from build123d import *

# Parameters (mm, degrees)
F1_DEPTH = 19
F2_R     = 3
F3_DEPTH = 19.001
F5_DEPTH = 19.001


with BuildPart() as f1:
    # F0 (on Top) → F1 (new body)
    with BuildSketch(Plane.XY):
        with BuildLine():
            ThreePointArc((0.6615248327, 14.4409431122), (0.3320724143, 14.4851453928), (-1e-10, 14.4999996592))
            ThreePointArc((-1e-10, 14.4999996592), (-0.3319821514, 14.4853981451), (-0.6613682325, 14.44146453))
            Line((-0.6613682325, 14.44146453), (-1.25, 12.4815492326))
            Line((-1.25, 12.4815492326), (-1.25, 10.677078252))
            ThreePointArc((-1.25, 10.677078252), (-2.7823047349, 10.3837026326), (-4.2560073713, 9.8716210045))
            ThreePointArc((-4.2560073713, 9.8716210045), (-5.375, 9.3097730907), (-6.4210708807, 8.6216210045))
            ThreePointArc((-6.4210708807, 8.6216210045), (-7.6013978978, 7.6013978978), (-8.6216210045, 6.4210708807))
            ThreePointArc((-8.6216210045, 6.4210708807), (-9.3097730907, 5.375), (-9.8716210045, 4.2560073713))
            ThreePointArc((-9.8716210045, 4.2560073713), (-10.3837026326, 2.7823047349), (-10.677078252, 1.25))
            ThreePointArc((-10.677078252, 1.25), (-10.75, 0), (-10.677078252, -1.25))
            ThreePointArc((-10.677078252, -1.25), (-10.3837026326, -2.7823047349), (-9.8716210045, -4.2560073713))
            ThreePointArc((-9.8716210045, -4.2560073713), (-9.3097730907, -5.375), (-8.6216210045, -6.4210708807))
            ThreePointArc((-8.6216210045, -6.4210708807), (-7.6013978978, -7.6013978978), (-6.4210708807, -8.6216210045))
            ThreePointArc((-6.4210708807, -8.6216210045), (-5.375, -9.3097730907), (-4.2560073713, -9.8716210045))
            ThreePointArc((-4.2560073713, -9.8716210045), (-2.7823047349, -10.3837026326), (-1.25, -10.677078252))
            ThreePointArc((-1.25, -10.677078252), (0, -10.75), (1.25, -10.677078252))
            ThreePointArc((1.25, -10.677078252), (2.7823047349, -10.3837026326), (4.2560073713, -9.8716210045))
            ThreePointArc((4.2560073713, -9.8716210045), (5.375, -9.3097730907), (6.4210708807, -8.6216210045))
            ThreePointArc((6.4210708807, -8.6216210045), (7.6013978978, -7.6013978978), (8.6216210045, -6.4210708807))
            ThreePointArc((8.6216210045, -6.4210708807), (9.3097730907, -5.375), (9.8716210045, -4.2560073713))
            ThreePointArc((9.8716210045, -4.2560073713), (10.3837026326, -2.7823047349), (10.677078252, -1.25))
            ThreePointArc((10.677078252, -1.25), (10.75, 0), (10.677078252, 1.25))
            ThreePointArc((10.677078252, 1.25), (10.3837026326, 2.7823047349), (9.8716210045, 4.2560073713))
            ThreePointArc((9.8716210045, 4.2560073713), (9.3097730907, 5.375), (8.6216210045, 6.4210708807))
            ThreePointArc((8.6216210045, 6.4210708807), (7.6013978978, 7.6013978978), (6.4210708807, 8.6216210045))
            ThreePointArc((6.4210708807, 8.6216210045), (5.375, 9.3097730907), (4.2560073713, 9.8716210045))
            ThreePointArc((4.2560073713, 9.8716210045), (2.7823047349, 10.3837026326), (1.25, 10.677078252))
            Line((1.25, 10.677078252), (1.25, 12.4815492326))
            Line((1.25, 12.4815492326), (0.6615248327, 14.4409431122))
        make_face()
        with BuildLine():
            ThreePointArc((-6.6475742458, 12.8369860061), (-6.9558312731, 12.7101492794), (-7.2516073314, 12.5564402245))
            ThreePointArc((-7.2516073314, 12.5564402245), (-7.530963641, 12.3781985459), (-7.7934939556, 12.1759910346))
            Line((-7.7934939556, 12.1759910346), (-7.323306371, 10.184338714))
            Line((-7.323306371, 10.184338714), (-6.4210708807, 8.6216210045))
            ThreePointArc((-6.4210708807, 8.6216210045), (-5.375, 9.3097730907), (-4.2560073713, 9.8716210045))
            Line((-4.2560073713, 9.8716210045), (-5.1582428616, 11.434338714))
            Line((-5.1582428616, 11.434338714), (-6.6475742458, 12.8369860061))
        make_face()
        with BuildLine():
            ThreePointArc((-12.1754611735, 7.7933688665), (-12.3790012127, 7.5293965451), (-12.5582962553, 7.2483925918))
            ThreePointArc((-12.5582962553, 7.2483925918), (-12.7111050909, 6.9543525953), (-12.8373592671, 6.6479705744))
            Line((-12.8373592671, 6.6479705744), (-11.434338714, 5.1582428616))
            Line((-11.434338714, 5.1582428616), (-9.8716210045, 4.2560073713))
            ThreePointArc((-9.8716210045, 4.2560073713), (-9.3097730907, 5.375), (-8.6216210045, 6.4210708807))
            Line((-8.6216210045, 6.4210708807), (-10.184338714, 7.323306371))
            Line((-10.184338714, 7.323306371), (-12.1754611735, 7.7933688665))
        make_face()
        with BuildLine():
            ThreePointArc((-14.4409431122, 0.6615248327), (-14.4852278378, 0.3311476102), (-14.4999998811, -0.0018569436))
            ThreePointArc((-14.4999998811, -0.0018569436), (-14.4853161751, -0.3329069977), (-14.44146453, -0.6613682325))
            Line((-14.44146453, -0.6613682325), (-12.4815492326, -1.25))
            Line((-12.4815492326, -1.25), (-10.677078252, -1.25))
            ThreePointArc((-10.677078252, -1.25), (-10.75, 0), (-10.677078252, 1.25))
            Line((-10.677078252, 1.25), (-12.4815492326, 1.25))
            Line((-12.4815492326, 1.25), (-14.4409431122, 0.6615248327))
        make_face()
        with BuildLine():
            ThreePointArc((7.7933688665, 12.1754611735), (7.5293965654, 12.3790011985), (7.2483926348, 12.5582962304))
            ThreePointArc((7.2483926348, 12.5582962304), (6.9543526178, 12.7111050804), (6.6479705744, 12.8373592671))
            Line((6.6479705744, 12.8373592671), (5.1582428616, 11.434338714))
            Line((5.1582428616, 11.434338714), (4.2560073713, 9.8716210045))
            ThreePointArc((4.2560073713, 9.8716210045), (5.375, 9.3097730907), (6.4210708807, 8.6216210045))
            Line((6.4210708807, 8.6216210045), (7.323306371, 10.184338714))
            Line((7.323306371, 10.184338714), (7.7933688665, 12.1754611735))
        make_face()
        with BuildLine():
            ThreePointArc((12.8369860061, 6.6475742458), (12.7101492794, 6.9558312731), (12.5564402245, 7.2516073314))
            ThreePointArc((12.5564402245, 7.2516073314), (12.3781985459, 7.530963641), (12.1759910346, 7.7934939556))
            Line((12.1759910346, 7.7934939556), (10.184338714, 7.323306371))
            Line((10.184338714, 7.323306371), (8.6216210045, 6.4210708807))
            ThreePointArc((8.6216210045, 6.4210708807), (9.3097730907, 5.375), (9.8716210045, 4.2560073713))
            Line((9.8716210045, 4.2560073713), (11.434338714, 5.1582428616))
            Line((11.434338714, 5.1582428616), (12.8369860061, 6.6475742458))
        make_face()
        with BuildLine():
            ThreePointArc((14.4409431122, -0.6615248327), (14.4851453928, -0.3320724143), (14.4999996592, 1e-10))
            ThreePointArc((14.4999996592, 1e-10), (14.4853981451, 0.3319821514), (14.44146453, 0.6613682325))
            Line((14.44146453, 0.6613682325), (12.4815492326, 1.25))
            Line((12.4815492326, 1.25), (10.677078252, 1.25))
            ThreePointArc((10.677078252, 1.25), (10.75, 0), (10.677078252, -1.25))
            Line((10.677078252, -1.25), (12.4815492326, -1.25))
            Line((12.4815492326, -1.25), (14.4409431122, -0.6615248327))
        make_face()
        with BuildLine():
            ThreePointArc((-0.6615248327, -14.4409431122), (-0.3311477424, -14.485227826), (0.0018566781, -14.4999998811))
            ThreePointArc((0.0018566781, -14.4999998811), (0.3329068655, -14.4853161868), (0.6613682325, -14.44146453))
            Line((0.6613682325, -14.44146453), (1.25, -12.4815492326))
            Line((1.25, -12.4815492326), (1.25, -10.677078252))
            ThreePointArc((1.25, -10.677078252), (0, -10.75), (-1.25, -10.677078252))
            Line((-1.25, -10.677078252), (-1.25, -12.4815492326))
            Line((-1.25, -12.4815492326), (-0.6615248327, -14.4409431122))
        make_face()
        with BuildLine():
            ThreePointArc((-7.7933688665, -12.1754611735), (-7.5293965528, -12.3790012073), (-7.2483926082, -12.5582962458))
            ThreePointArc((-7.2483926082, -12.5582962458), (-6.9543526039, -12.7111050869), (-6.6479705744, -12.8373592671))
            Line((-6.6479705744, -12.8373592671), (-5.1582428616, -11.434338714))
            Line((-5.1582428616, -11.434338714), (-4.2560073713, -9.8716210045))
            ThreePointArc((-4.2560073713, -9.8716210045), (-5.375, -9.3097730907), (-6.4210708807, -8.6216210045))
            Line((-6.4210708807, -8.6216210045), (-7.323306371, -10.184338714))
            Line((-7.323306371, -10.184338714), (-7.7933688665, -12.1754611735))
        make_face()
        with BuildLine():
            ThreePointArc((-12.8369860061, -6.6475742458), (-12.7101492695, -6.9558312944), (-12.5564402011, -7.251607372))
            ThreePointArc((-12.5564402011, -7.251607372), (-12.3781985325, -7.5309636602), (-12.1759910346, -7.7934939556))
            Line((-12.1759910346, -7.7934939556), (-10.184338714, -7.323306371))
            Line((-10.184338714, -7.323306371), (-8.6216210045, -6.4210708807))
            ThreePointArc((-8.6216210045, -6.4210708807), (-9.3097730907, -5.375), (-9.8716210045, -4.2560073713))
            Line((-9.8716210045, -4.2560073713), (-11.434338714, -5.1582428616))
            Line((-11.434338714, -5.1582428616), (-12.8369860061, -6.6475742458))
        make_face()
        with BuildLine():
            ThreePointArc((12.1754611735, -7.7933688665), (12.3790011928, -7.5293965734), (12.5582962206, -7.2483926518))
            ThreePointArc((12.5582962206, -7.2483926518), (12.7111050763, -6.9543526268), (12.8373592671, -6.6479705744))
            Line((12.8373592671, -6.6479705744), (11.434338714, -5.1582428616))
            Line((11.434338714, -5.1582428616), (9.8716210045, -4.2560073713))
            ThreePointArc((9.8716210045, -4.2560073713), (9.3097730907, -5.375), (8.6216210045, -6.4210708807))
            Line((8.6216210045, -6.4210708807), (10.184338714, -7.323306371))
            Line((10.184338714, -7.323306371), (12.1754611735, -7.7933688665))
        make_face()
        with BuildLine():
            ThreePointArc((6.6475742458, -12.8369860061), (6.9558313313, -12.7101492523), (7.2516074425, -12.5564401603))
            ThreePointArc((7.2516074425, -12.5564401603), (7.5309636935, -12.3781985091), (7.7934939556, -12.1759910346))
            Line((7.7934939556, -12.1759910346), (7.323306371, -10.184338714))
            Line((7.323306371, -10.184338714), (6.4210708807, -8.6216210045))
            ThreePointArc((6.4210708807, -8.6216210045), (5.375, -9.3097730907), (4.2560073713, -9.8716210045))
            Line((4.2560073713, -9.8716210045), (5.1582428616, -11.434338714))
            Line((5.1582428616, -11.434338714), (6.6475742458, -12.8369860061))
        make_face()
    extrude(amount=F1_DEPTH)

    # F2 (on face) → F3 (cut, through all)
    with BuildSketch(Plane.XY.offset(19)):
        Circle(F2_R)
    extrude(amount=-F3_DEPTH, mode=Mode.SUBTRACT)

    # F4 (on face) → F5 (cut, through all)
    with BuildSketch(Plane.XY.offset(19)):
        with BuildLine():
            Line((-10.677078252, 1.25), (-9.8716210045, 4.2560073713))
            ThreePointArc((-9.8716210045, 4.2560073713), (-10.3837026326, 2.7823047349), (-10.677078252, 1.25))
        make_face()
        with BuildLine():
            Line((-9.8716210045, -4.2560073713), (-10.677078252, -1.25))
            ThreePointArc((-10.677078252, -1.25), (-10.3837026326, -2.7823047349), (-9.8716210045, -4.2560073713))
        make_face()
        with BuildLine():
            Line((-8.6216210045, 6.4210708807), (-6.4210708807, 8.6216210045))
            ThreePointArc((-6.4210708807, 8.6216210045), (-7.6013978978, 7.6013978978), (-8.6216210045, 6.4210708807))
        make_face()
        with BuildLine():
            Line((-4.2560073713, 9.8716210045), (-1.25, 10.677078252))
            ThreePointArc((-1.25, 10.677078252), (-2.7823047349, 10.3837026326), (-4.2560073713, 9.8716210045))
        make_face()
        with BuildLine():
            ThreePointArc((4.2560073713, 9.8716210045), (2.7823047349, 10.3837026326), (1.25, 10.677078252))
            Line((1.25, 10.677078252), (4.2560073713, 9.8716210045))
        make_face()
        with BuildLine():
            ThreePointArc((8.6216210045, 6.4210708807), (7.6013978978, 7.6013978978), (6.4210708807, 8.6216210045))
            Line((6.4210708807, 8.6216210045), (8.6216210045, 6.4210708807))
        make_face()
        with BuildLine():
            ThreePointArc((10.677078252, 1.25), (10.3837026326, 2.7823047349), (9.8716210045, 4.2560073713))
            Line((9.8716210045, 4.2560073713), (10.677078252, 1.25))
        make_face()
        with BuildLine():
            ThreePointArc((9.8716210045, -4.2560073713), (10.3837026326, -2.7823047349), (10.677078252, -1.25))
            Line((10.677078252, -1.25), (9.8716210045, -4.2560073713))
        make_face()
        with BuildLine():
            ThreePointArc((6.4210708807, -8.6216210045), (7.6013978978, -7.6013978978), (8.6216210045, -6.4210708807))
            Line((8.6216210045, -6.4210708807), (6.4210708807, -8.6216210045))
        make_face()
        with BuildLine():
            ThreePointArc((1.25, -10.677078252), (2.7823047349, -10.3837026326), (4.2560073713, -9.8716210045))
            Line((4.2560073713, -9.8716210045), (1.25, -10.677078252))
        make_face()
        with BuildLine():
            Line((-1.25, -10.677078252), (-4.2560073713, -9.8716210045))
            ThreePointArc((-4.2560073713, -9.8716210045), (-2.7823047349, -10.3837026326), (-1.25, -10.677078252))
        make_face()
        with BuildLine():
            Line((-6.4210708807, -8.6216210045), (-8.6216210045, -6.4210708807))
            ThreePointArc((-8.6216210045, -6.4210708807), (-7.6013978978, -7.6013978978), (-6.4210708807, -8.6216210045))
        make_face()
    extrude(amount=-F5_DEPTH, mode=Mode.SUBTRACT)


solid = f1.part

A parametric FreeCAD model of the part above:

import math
import FreeCAD as App
import Part
import Sketcher

V = App.Vector
Q = App.Units.Quantity

doc = App.newDocument("Part")
body = doc.addObject("PartDesign::Body", "Body")

# Sketch on XY plane
sketch1 = doc.addObject("Sketcher::SketchObject", "Sketch")
body.addObject(sketch1)
sketch1.AttachmentSupport = (doc.XY_Plane, [""])
sketch1.MapMode = "FlatFace"
sketch1.addGeometry([
    Part.ArcOfCircle(Part.Circle(V(-0.001377, 10.75, 0), V(0, 0, 1), 3.75), math.radians(79.818106), math.radians(89.978967)),  # 0
    Part.ArcOfCircle(Part.Circle(V(-0.001377, 10.75, 0), V(0, 0, 1), 3.75), math.radians(89.978967), math.radians(100.136728)),  # 1
    Part.LineSegment(V(-0.661368, 14.441465, 0), V(-1.25, 12.481549, 0)),  # 2
    Part.LineSegment(V(-1.25, 12.481549, 0), V(-1.25, 10.677078, 0)),  # 3
    Part.ArcOfCircle(Part.Circle(V(0, 0, 0), V(0, 0, 1), 10.75), math.radians(96.677405), math.radians(113.322595)),  # 4
    Part.LineSegment(V(-4.256007, 9.871621, 0), V(-5.158243, 11.434339, 0)),  # 5
    Part.LineSegment(V(-5.158243, 11.434339, 0), V(-6.647574, 12.836986, 0)),  # 6
    Part.ArcOfCircle(Part.Circle(V(-5.376192, 9.309085, 0), V(0, 0, 1), 3.75), math.radians(109.818106), math.radians(120.007326)),  # 7
    Part.ArcOfCircle(Part.Circle(V(-5.376192, 9.309085, 0), V(0, 0, 1), 3.75), math.radians(120.007326), math.radians(130.136727)),  # 8
    Part.LineSegment(V(-7.793494, 12.175991, 0), V(-7.323306, 10.184339, 0)),  # 9
    Part.LineSegment(V(-7.323306, 10.184339, 0), V(-6.421071, 8.621621, 0)),  # 10
    Part.ArcOfCircle(Part.Circle(V(0, 0, 0), V(0, 0, 1), 10.75), math.radians(126.677405), math.radians(143.322595)),  # 11
    Part.LineSegment(V(-8.621621, 6.421071, 0), V(-10.184339, 7.323306, 0)),  # 12
    Part.LineSegment(V(-10.184339, 7.323306, 0), V(-12.175461, 7.793369, 0)),  # 13
    Part.ArcOfCircle(Part.Circle(V(-9.310461, 5.373808, 0), V(0, 0, 1), 3.75), math.radians(139.818106), math.radians(150.007325)),  # 14
    Part.ArcOfCircle(Part.Circle(V(-9.310461, 5.373808, 0), V(0, 0, 1), 3.75), math.radians(150.007325), math.radians(160.136728)),  # 15
    Part.LineSegment(V(-12.837359, 6.647971, 0), V(-11.434339, 5.158243, 0)),  # 16
    Part.LineSegment(V(-11.434339, 5.158243, 0), V(-9.871621, 4.256007, 0)),  # 17
    Part.ArcOfCircle(Part.Circle(V(0, 0, 0), V(0, 0, 1), 10.75), math.radians(156.677405), math.radians(173.322595)),  # 18
    Part.LineSegment(V(-10.677078, 1.25, 0), V(-12.481549, 1.25, 0)),  # 19
    Part.LineSegment(V(-12.481549, 1.25, 0), V(-14.440943, 0.661525, 0)),  # 20
    Part.ArcOfCircle(Part.Circle(V(-10.75, -0.001377, 0), V(0, 0, 1), 3.75), math.radians(169.818106), math.radians(180.007339)),  # 21
    Part.ArcOfCircle(Part.Circle(V(-10.75, -0.001377, 0), V(0, 0, 1), 3.75), math.radians(-179.992661), math.radians(-169.863272)),  # 22
    Part.LineSegment(V(-14.441465, -0.661368, 0), V(-12.481549, -1.25, 0)),  # 23
    Part.LineSegment(V(-12.481549, -1.25, 0), V(-10.677078, -1.25, 0)),  # 24
    Part.ArcOfCircle(Part.Circle(V(0, 0, 0), V(0, 0, 1), 10.75), math.radians(-173.322595), math.radians(-156.677405)),  # 25
    Part.LineSegment(V(-9.871621, -4.256007, 0), V(-11.434339, -5.158243, 0)),  # 26
    Part.LineSegment(V(-11.434339, -5.158243, 0), V(-12.836986, -6.647574, 0)),  # 27
    Part.ArcOfCircle(Part.Circle(V(-9.309085, -5.376192, 0), V(0, 0, 1), 3.75), math.radians(-160.181894), math.radians(-149.992674)),  # 28
    Part.ArcOfCircle(Part.Circle(V(-9.309085, -5.376192, 0), V(0, 0, 1), 3.75), math.radians(-149.992674), math.radians(-139.863272)),  # 29
    Part.LineSegment(V(-12.175991, -7.793494, 0), V(-10.184339, -7.323306, 0)),  # 30
    Part.LineSegment(V(-10.184339, -7.323306, 0), V(-8.621621, -6.421071, 0)),  # 31
    Part.ArcOfCircle(Part.Circle(V(0, 0, 0), V(0, 0, 1), 10.75), math.radians(-143.322595), math.radians(-126.677405)),  # 32
    Part.LineSegment(V(-6.421071, -8.621621, 0), V(-7.323306, -10.184339, 0)),  # 33
    Part.LineSegment(V(-7.323306, -10.184339, 0), V(-7.793369, -12.175461, 0)),  # 34
    Part.ArcOfCircle(Part.Circle(V(-5.373808, -9.310461, 0), V(0, 0, 1), 3.75), math.radians(-130.181894), math.radians(-119.992675)),  # 35
    Part.ArcOfCircle(Part.Circle(V(-5.373808, -9.310461, 0), V(0, 0, 1), 3.75), math.radians(-119.992675), math.radians(-109.863272)),  # 36
    Part.LineSegment(V(-6.647971, -12.837359, 0), V(-5.158243, -11.434339, 0)),  # 37
    Part.LineSegment(V(-5.158243, -11.434339, 0), V(-4.256007, -9.871621, 0)),  # 38
    Part.ArcOfCircle(Part.Circle(V(0, 0, 0), V(0, 0, 1), 10.75), math.radians(-113.322595), math.radians(-96.677405)),  # 39
    Part.LineSegment(V(-1.25, -10.677078, 0), V(-1.25, -12.481549, 0)),  # 40
    Part.LineSegment(V(-1.25, -12.481549, 0), V(-0.661525, -14.440943, 0)),  # 41
    Part.ArcOfCircle(Part.Circle(V(0.001377, -10.75, 0), V(0, 0, 1), 3.75), math.radians(-100.181894), math.radians(-89.992665)),  # 42
    Part.ArcOfCircle(Part.Circle(V(0.001377, -10.75, 0), V(0, 0, 1), 3.75), math.radians(-89.992665), math.radians(-79.863272)),  # 43
    Part.LineSegment(V(0.661368, -14.441465, 0), V(1.25, -12.481549, 0)),  # 44
    Part.LineSegment(V(1.25, -12.481549, 0), V(1.25, -10.677078, 0)),  # 45
    Part.ArcOfCircle(Part.Circle(V(0, 0, 0), V(0, 0, 1), 10.75), math.radians(-83.322595), math.radians(-66.677405)),  # 46
    Part.LineSegment(V(4.256007, -9.871621, 0), V(5.158243, -11.434339, 0)),  # 47
    Part.LineSegment(V(5.158243, -11.434339, 0), V(6.647574, -12.836986, 0)),  # 48
    Part.ArcOfCircle(Part.Circle(V(5.376192, -9.309085, 0), V(0, 0, 1), 3.75), math.radians(-70.181894), math.radians(-59.992672)),  # 49
    Part.ArcOfCircle(Part.Circle(V(5.376192, -9.309085, 0), V(0, 0, 1), 3.75), math.radians(-59.992672), math.radians(-49.863272)),  # 50
    Part.LineSegment(V(7.793494, -12.175991, 0), V(7.323306, -10.184339, 0)),  # 51
    Part.LineSegment(V(7.323306, -10.184339, 0), V(6.421071, -8.621621, 0)),  # 52
    Part.ArcOfCircle(Part.Circle(V(0, 0, 0), V(0, 0, 1), 10.75), math.radians(-53.322595), math.radians(-36.677405)),  # 53
    Part.LineSegment(V(8.621621, -6.421071, 0), V(10.184339, -7.323306, 0)),  # 54
    Part.LineSegment(V(10.184339, -7.323306, 0), V(12.175461, -7.793369, 0)),  # 55
    Part.ArcOfCircle(Part.Circle(V(9.310461, -5.373808, 0), V(0, 0, 1), 3.75), math.radians(-40.181894), math.radians(-29.992676)),  # 56
    Part.ArcOfCircle(Part.Circle(V(9.310461, -5.373808, 0), V(0, 0, 1), 3.75), math.radians(-29.992676), math.radians(-19.863272)),  # 57
    Part.LineSegment(V(12.837359, -6.647971, 0), V(11.434339, -5.158243, 0)),  # 58
    Part.LineSegment(V(11.434339, -5.158243, 0), V(9.871621, -4.256007, 0)),  # 59
    Part.ArcOfCircle(Part.Circle(V(0, 0, 0), V(0, 0, 1), 10.75), math.radians(-23.322595), math.radians(-6.677405)),  # 60
    Part.LineSegment(V(10.677078, -1.25, 0), V(12.481549, -1.25, 0)),  # 61
    Part.LineSegment(V(12.481549, -1.25, 0), V(14.440943, -0.661525, 0)),  # 62
    Part.ArcOfCircle(Part.Circle(V(10.75, 0.001377, 0), V(0, 0, 1), 3.75), math.radians(-10.181894), math.radians(-0.021033)),  # 63
    Part.ArcOfCircle(Part.Circle(V(10.75, 0.001377, 0), V(0, 0, 1), 3.75), math.radians(-0.021033), math.radians(10.136728)),  # 64
    Part.LineSegment(V(14.441465, 0.661368, 0), V(12.481549, 1.25, 0)),  # 65
    Part.LineSegment(V(12.481549, 1.25, 0), V(10.677078, 1.25, 0)),  # 66
    Part.ArcOfCircle(Part.Circle(V(0, 0, 0), V(0, 0, 1), 10.75), math.radians(6.677405), math.radians(23.322595)),  # 67
    Part.LineSegment(V(9.871621, 4.256007, 0), V(11.434339, 5.158243, 0)),  # 68
    Part.LineSegment(V(11.434339, 5.158243, 0), V(12.836986, 6.647574, 0)),  # 69
    Part.ArcOfCircle(Part.Circle(V(9.309085, 5.376192, 0), V(0, 0, 1), 3.75), math.radians(19.818106), math.radians(30.007326)),  # 70
    Part.ArcOfCircle(Part.Circle(V(9.309085, 5.376192, 0), V(0, 0, 1), 3.75), math.radians(30.007326), math.radians(40.136727)),  # 71
    Part.LineSegment(V(12.175991, 7.793494, 0), V(10.184339, 7.323306, 0)),  # 72
    Part.LineSegment(V(10.184339, 7.323306, 0), V(8.621621, 6.421071, 0)),  # 73
    Part.ArcOfCircle(Part.Circle(V(0, 0, 0), V(0, 0, 1), 10.75), math.radians(36.677405), math.radians(53.322595)),  # 74
    Part.LineSegment(V(6.421071, 8.621621, 0), V(7.323306, 10.184339, 0)),  # 75
    Part.LineSegment(V(7.323306, 10.184339, 0), V(7.793369, 12.175461, 0)),  # 76
    Part.ArcOfCircle(Part.Circle(V(5.373808, 9.310461, 0), V(0, 0, 1), 3.75), math.radians(49.818106), math.radians(60.007324)),  # 77
    Part.ArcOfCircle(Part.Circle(V(5.373808, 9.310461, 0), V(0, 0, 1), 3.75), math.radians(60.007324), math.radians(70.136728)),  # 78
    Part.LineSegment(V(6.647971, 12.837359, 0), V(5.158243, 11.434339, 0)),  # 79
    Part.LineSegment(V(5.158243, 11.434339, 0), V(4.256007, 9.871621, 0)),  # 80
    Part.ArcOfCircle(Part.Circle(V(0, 0, 0), V(0, 0, 1), 10.75), math.radians(66.677405), math.radians(83.322595)),  # 81
    Part.LineSegment(V(1.25, 10.677078, 0), V(1.25, 12.481549, 0)),  # 82
    Part.LineSegment(V(1.25, 12.481549, 0), V(0.661525, 14.440943, 0)),  # 83
], False)
sketch1.addConstraint([
    Sketcher.Constraint("Coincident", 0, 2, 1, 1),
    Sketcher.Constraint("Coincident", 1, 2, 2, 1),
    Sketcher.Constraint("Coincident", 2, 2, 3, 1),
    Sketcher.Constraint("Coincident", 3, 2, 4, 1),
    Sketcher.Constraint("Coincident", 4, 2, 5, 1),
    Sketcher.Constraint("Coincident", 5, 2, 6, 1),
    Sketcher.Constraint("Coincident", 6, 2, 7, 1),
    Sketcher.Constraint("Coincident", 7, 2, 8, 1),
    Sketcher.Constraint("Coincident", 8, 2, 9, 1),
    Sketcher.Constraint("Coincident", 9, 2, 10, 1),
    Sketcher.Constraint("Coincident", 10, 2, 11, 1),
    Sketcher.Constraint("Coincident", 11, 2, 12, 1),
    Sketcher.Constraint("Coincident", 12, 2, 13, 1),
    Sketcher.Constraint("Coincident", 13, 2, 14, 1),
    Sketcher.Constraint("Coincident", 14, 2, 15, 1),
    Sketcher.Constraint("Coincident", 15, 2, 16, 1),
    Sketcher.Constraint("Coincident", 16, 2, 17, 1),
    Sketcher.Constraint("Coincident", 17, 2, 18, 1),
    Sketcher.Constraint("Coincident", 18, 2, 19, 1),
    Sketcher.Constraint("Coincident", 19, 2, 20, 1),
    Sketcher.Constraint("Coincident", 20, 2, 21, 1),
    Sketcher.Constraint("Coincident", 21, 2, 22, 1),
    Sketcher.Constraint("Coincident", 22, 2, 23, 1),
    Sketcher.Constraint("Coincident", 23, 2, 24, 1),
    Sketcher.Constraint("Coincident", 24, 2, 25, 1),
    Sketcher.Constraint("Coincident", 25, 2, 26, 1),
    Sketcher.Constraint("Coincident", 26, 2, 27, 1),
    Sketcher.Constraint("Coincident", 27, 2, 28, 1),
    Sketcher.Constraint("Coincident", 28, 2, 29, 1),
    Sketcher.Constraint("Coincident", 29, 2, 30, 1),
    Sketcher.Constraint("Coincident", 30, 2, 31, 1),
    Sketcher.Constraint("Coincident", 31, 2, 32, 1),
    Sketcher.Constraint("Coincident", 32, 2, 33, 1),
    Sketcher.Constraint("Coincident", 33, 2, 34, 1),
    Sketcher.Constraint("Coincident", 34, 2, 35, 1),
    Sketcher.Constraint("Coincident", 35, 2, 36, 1),
    Sketcher.Constraint("Coincident", 36, 2, 37, 1),
    Sketcher.Constraint("Coincident", 37, 2, 38, 1),
    Sketcher.Constraint("Coincident", 38, 2, 39, 1),
    Sketcher.Constraint("Coincident", 39, 2, 40, 1),
    Sketcher.Constraint("Coincident", 40, 2, 41, 1),
    Sketcher.Constraint("Coincident", 41, 2, 42, 1),
    Sketcher.Constraint("Coincident", 42, 2, 43, 1),
    Sketcher.Constraint("Coincident", 43, 2, 44, 1),
    Sketcher.Constraint("Coincident", 44, 2, 45, 1),
    Sketcher.Constraint("Coincident", 45, 2, 46, 1),
    Sketcher.Constraint("Coincident", 46, 2, 47, 1),
    Sketcher.Constraint("Coincident", 47, 2, 48, 1),
    Sketcher.Constraint("Coincident", 48, 2, 49, 1),
    Sketcher.Constraint("Coincident", 49, 2, 50, 1),
    Sketcher.Constraint("Coincident", 50, 2, 51, 1),
    Sketcher.Constraint("Coincident", 51, 2, 52, 1),
    Sketcher.Constraint("Coincident", 52, 2, 53, 1),
    Sketcher.Constraint("Coincident", 53, 2, 54, 1),
    Sketcher.Constraint("Coincident", 54, 2, 55, 1),
    Sketcher.Constraint("Coincident", 55, 2, 56, 1),
    Sketcher.Constraint("Coincident", 56, 2, 57, 1),
    Sketcher.Constraint("Coincident", 57, 2, 58, 1),
    Sketcher.Constraint("Coincident", 58, 2, 59, 1),
    Sketcher.Constraint("Coincident", 59, 2, 60, 1),
    Sketcher.Constraint("Coincident", 60, 2, 61, 1),
    Sketcher.Constraint("Coincident", 61, 2, 62, 1),
    Sketcher.Constraint("Coincident", 62, 2, 63, 1),
    Sketcher.Constraint("Coincident", 63, 2, 64, 1),
    Sketcher.Constraint("Coincident", 64, 2, 65, 1),
    Sketcher.Constraint("Coincident", 65, 2, 66, 1),
    Sketcher.Constraint("Coincident", 66, 2, 67, 1),
    Sketcher.Constraint("Coincident", 67, 2, 68, 1),
    Sketcher.Constraint("Coincident", 68, 2, 69, 1),
    Sketcher.Constraint("Coincident", 69, 2, 70, 1),
    Sketcher.Constraint("Coincident", 70, 2, 71, 1),
    Sketcher.Constraint("Coincident", 71, 2, 72, 1),
    Sketcher.Constraint("Coincident", 72, 2, 73, 1),
    Sketcher.Constraint("Coincident", 73, 2, 74, 1),
    Sketcher.Constraint("Coincident", 74, 2, 75, 1),
    Sketcher.Constraint("Coincident", 75, 2, 76, 1),
    Sketcher.Constraint("Coincident", 76, 2, 77, 1),
    Sketcher.Constraint("Coincident", 77, 2, 78, 1),
    Sketcher.Constraint("Coincident", 78, 2, 79, 1),
    Sketcher.Constraint("Coincident", 79, 2, 80, 1),
    Sketcher.Constraint("Coincident", 80, 2, 81, 1),
    Sketcher.Constraint("Coincident", 81, 2, 82, 1),
    Sketcher.Constraint("Coincident", 82, 2, 83, 1),
    Sketcher.Constraint("Coincident", 83, 2, 0, 1),
    Sketcher.Constraint("Vertical", 3),
    Sketcher.Constraint("Horizontal", 19),
    Sketcher.Constraint("Horizontal", 24),
    Sketcher.Constraint("Vertical", 40),
    Sketcher.Constraint("Vertical", 45),
    Sketcher.Constraint("Horizontal", 61),
    Sketcher.Constraint("Horizontal", 66),
    Sketcher.Constraint("Vertical", 82),
    Sketcher.Constraint("Coincident", 4, 3, -1, 1),
    Sketcher.Constraint("Coincident", 11, 3, -1, 1),
    Sketcher.Constraint("Coincident", 18, 3, -1, 1),
    Sketcher.Constraint("Coincident", 25, 3, -1, 1),
    Sketcher.Constraint("Coincident", 32, 3, -1, 1),
    Sketcher.Constraint("Coincident", 39, 3, -1, 1),
    Sketcher.Constraint("Coincident", 46, 3, -1, 1),
    Sketcher.Constraint("Coincident", 53, 3, -1, 1),
    Sketcher.Constraint("Coincident", 60, 3, -1, 1),
    Sketcher.Constraint("Coincident", 67, 3, -1, 1),
    Sketcher.Constraint("Coincident", 74, 3, -1, 1),
    Sketcher.Constraint("Coincident", 81, 3, -1, 1),
    Sketcher.Constraint("Coincident", 1, 3, 0, 3),
    Sketcher.Constraint("Coincident", 8, 3, 7, 3),
    Sketcher.Constraint("Coincident", 15, 3, 14, 3),
    Sketcher.Constraint("Coincident", 22, 3, 21, 3),
    Sketcher.Constraint("Coincident", 29, 3, 28, 3),
    Sketcher.Constraint("Coincident", 36, 3, 35, 3),
    Sketcher.Constraint("Coincident", 43, 3, 42, 3),
    Sketcher.Constraint("Coincident", 50, 3, 49, 3),
    Sketcher.Constraint("Coincident", 57, 3, 56, 3),
    Sketcher.Constraint("Coincident", 64, 3, 63, 3),
    Sketcher.Constraint("Coincident", 71, 3, 70, 3),
    Sketcher.Constraint("Coincident", 78, 3, 77, 3),
    Sketcher.Constraint("PointOnObject", 0, 2, -2),
    Sketcher.Constraint("PointOnObject", 63, 2, -1),
    Sketcher.Constraint("Radius", 0, Q("3.75 mm")),
    Sketcher.Constraint("Radius", 4, Q("10.75 mm")),
    Sketcher.Constraint("Radius", 7, Q("3.75 mm")),
    Sketcher.Constraint("Radius", 11, Q("10.75 mm")),
    Sketcher.Constraint("Radius", 14, Q("3.75 mm")),
    Sketcher.Constraint("Radius", 18, Q("10.75 mm")),
    Sketcher.Constraint("Radius", 21, Q("3.75 mm")),
    Sketcher.Constraint("Radius", 25, Q("10.75 mm")),
    Sketcher.Constraint("Radius", 28, Q("3.75 mm")),
    Sketcher.Constraint("Radius", 32, Q("10.75 mm")),
    Sketcher.Constraint("Radius", 35, Q("3.75 mm")),
    Sketcher.Constraint("Radius", 39, Q("10.75 mm")),
    Sketcher.Constraint("Radius", 42, Q("3.75 mm")),
    Sketcher.Constraint("Radius", 46, Q("10.75 mm")),
    Sketcher.Constraint("Radius", 49, Q("3.75 mm")),
    Sketcher.Constraint("Radius", 53, Q("10.75 mm")),
    Sketcher.Constraint("Radius", 56, Q("3.75 mm")),
    Sketcher.Constraint("Radius", 60, Q("10.75 mm")),
    Sketcher.Constraint("Radius", 63, Q("3.75 mm")),
    Sketcher.Constraint("Radius", 67, Q("10.75 mm")),
    Sketcher.Constraint("Radius", 70, Q("3.75 mm")),
    Sketcher.Constraint("Radius", 74, Q("10.75 mm")),
    Sketcher.Constraint("Radius", 77, Q("3.75 mm")),
    Sketcher.Constraint("Radius", 81, Q("10.75 mm")),
    Sketcher.Constraint("DistanceY", -1, 1, 0, 2, Q("14.5 mm")),
    Sketcher.Constraint("DistanceX", 21, 2, -1, 1, Q("14.5 mm")),
    Sketcher.Constraint("DistanceY", 42, 2, -1, 1, Q("14.5 mm")),
    Sketcher.Constraint("DistanceX", -1, 1, 63, 2, Q("14.5 mm")),
    Sketcher.Constraint("DistanceX", 2, 2, -1, 1, Q("1.25 mm")),
    Sketcher.Constraint("DistanceY", -1, 1, 18, 2, Q("1.25 mm")),
    Sketcher.Constraint("DistanceY", 23, 2, -1, 1, Q("1.25 mm")),
    Sketcher.Constraint("DistanceX", 39, 2, -1, 1, Q("1.25 mm")),
    Sketcher.Constraint("DistanceX", -1, 1, 44, 2, Q("1.25 mm")),
    Sketcher.Constraint("DistanceY", 60, 2, -1, 1, Q("1.25 mm")),
    Sketcher.Constraint("DistanceY", -1, 1, 65, 2, Q("1.25 mm")),
    Sketcher.Constraint("DistanceX", -1, 1, 81, 2, Q("1.25 mm")),
    Sketcher.Constraint("Distance", 2, Q("2.046401 mm")),
    Sketcher.Constraint("Distance", 9, Q("2.046401 mm")),
    Sketcher.Constraint("Distance", 16, Q("2.046401 mm")),
    Sketcher.Constraint("Distance", 23, Q("2.046401 mm")),
    Sketcher.Constraint("Distance", 30, Q("2.046401 mm")),
    Sketcher.Constraint("Distance", 37, Q("2.046401 mm")),
    Sketcher.Constraint("Distance", 44, Q("2.046401 mm")),
    Sketcher.Constraint("Distance", 51, Q("2.046401 mm")),
    Sketcher.Constraint("Distance", 58, Q("2.046401 mm")),
    Sketcher.Constraint("Distance", 65, Q("2.046401 mm")),
    Sketcher.Constraint("Distance", 72, Q("2.046401 mm")),
    Sketcher.Constraint("Distance", 79, Q("2.046401 mm")),
    Sketcher.Constraint("DistanceX", 19, 2, 19, 1, Q("1.804471 mm")),
    Sketcher.Constraint("DistanceX", 24, 1, 24, 2, Q("1.804471 mm")),
    Sketcher.Constraint("DistanceX", 61, 1, 61, 2, Q("1.804471 mm")),
    Sketcher.Constraint("DistanceX", 66, 2, 66, 1, Q("1.804471 mm")),
    Sketcher.Constraint("DistanceY", 3, 2, 3, 1, Q("1.804471 mm")),
    Sketcher.Constraint("DistanceY", 40, 2, 40, 1, Q("1.804471 mm")),
    Sketcher.Constraint("DistanceY", 45, 1, 45, 2, Q("1.804471 mm")),
    Sketcher.Constraint("DistanceY", 82, 1, 82, 2, Q("1.804471 mm")),
    Sketcher.Constraint("Distance", 5, Q("1.804471 mm")),
    Sketcher.Constraint("Distance", 10, Q("1.804471 mm")),
    Sketcher.Constraint("Distance", 12, Q("1.804471 mm")),
    Sketcher.Constraint("Distance", 17, Q("1.804471 mm")),
    Sketcher.Constraint("Distance", 26, Q("1.804471 mm")),
    Sketcher.Constraint("Distance", 31, Q("1.804471 mm")),
    Sketcher.Constraint("Distance", 33, Q("1.804471 mm")),
    Sketcher.Constraint("Distance", 38, Q("1.804471 mm")),
    Sketcher.Constraint("Distance", 47, Q("1.804471 mm")),
    Sketcher.Constraint("Distance", 52, Q("1.804471 mm")),
    Sketcher.Constraint("Distance", 54, Q("1.804471 mm")),
    Sketcher.Constraint("Distance", 59, Q("1.804471 mm")),
    Sketcher.Constraint("Distance", 68, Q("1.804471 mm")),
    Sketcher.Constraint("Distance", 73, Q("1.804471 mm")),
    Sketcher.Constraint("Distance", 75, Q("1.804471 mm")),
    Sketcher.Constraint("Distance", 80, Q("1.804471 mm")),
    Sketcher.Constraint("DistanceX", 14, 3, -1, 1, Q("9.310461 mm")),
    Sketcher.Constraint("DistanceY", 35, 3, -1, 1, Q("9.310461 mm")),
    Sketcher.Constraint("DistanceX", -1, 1, 56, 3, Q("9.310461 mm")),
    Sketcher.Constraint("DistanceY", -1, 1, 77, 3, Q("9.310461 mm")),
    Sketcher.Constraint("DistanceX", 1, 2, -1, 1, Q("0.661368 mm")),
    Sketcher.Constraint("DistanceY", -1, 1, 4, 2, Q("9.871621 mm")),
    Sketcher.Constraint("DistanceY", -1, 1, 5, 2, Q("11.434339 mm")),
    Sketcher.Constraint("DistanceY", -1, 1, 7, 2, Q("12.55644 mm")),
    Sketcher.Constraint("DistanceY", -1, 1, 8, 2, Q("12.175991 mm")),
    Sketcher.Constraint("DistanceY", -1, 1, 9, 2, Q("10.184339 mm")),
    Sketcher.Constraint("DistanceX", 10, 2, -1, 1, Q("6.421071 mm")),
    Sketcher.Constraint("DistanceX", 11, 2, -1, 1, Q("8.621621 mm")),
    Sketcher.Constraint("DistanceX", 12, 2, -1, 1, Q("10.184339 mm")),
    Sketcher.Constraint("DistanceX", 13, 2, -1, 1, Q("12.175461 mm")),
    Sketcher.Constraint("DistanceY", -1, 1, 13, 2, Q("7.793369 mm")),
    Sketcher.Constraint("DistanceX", 15, 2, -1, 1, Q("12.837359 mm")),
    Sketcher.Constraint("DistanceX", 16, 2, -1, 1, Q("11.434339 mm")),
    Sketcher.Constraint("DistanceY", 22, 2, -1, 1, Q("0.661368 mm")),
    Sketcher.Constraint("DistanceX", 25, 2, -1, 1, Q("9.871621 mm")),
    Sketcher.Constraint("DistanceX", 26, 2, -1, 1, Q("11.434339 mm")),
    Sketcher.Constraint("DistanceX", 28, 2, -1, 1, Q("12.55644 mm")),
    Sketcher.Constraint("DistanceX", 29, 2, -1, 1, Q("12.175991 mm")),
    Sketcher.Constraint("DistanceX", 30, 2, -1, 1, Q("10.184339 mm")),
    Sketcher.Constraint("DistanceX", 31, 2, -1, 1, Q("8.621621 mm")),
    Sketcher.Constraint("DistanceX", 32, 2, -1, 1, Q("6.421071 mm")),
    Sketcher.Constraint("DistanceY", 33, 2, -1, 1, Q("10.184339 mm")),
    Sketcher.Constraint("DistanceX", 34, 2, -1, 1, Q("7.793369 mm")),
    Sketcher.Constraint("DistanceY", 34, 2, -1, 1, Q("12.175461 mm")),
    Sketcher.Constraint("DistanceX", 36, 2, -1, 1, Q("6.647971 mm")),
    Sketcher.Constraint("DistanceY", 37, 2, -1, 1, Q("11.434339 mm")),
    Sketcher.Constraint("DistanceX", -1, 1, 43, 2, Q("0.661368 mm")),
    Sketcher.Constraint("DistanceY", 46, 2, -1, 1, Q("9.871621 mm")),
    Sketcher.Constraint("DistanceY", 47, 2, -1, 1, Q("11.434339 mm")),
    Sketcher.Constraint("DistanceY", 49, 2, -1, 1, Q("12.55644 mm")),
    Sketcher.Constraint("DistanceY", 50, 2, -1, 1, Q("12.175991 mm")),
    Sketcher.Constraint("DistanceY", 51, 2, -1, 1, Q("10.184339 mm")),
    Sketcher.Constraint("DistanceX", -1, 1, 52, 2, Q("6.421071 mm")),
    Sketcher.Constraint("DistanceX", -1, 1, 53, 2, Q("8.621621 mm")),
    Sketcher.Constraint("DistanceX", -1, 1, 54, 2, Q("10.184339 mm")),
    Sketcher.Constraint("DistanceX", -1, 1, 55, 2, Q("12.175461 mm")),
    Sketcher.Constraint("DistanceY", 55, 2, -1, 1, Q("7.793369 mm")),
    Sketcher.Constraint("DistanceX", -1, 1, 57, 2, Q("12.837359 mm")),
    Sketcher.Constraint("DistanceX", -1, 1, 58, 2, Q("11.434339 mm")),
    Sketcher.Constraint("DistanceY", -1, 1, 64, 2, Q("0.661368 mm")),
    Sketcher.Constraint("DistanceX", -1, 1, 67, 2, Q("9.871621 mm")),
    Sketcher.Constraint("DistanceX", -1, 1, 68, 2, Q("11.434339 mm")),
    Sketcher.Constraint("DistanceX", -1, 1, 70, 2, Q("12.55644 mm")),
    Sketcher.Constraint("DistanceX", -1, 1, 71, 2, Q("12.175991 mm")),
    Sketcher.Constraint("DistanceX", -1, 1, 72, 2, Q("10.184339 mm")),
    Sketcher.Constraint("DistanceX", -1, 1, 73, 2, Q("8.621621 mm")),
    Sketcher.Constraint("DistanceX", -1, 1, 74, 2, Q("6.421071 mm")),
    Sketcher.Constraint("DistanceY", -1, 1, 75, 2, Q("10.184339 mm")),
    Sketcher.Constraint("DistanceX", -1, 1, 76, 2, Q("7.793369 mm")),
    Sketcher.Constraint("DistanceY", -1, 1, 76, 2, Q("12.175461 mm")),
    Sketcher.Constraint("DistanceX", -1, 1, 78, 2, Q("6.647971 mm")),
    Sketcher.Constraint("DistanceY", -1, 1, 79, 2, Q("11.434339 mm")),
    Sketcher.Constraint("Distance", 6, Q("2.045856 mm")),
    Sketcher.Constraint("Distance", 20, Q("2.045856 mm")),
    Sketcher.Constraint("Distance", 27, Q("2.045856 mm")),
    Sketcher.Constraint("Distance", 41, Q("2.045856 mm")),
    Sketcher.Constraint("Distance", 48, Q("2.045856 mm")),
    Sketcher.Constraint("Distance", 62, Q("2.045856 mm")),
    Sketcher.Constraint("Distance", 69, Q("2.045856 mm")),
    Sketcher.Constraint("Distance", 83, Q("2.045856 mm")),
    Sketcher.Constraint("DistanceX", 7, 3, -1, 1, Q("5.376192 mm")),
    Sketcher.Constraint("DistanceX", 28, 3, -1, 1, Q("9.309085 mm")),
    Sketcher.Constraint("DistanceX", -1, 1, 49, 3, Q("5.376192 mm")),
    Sketcher.Constraint("DistanceX", -1, 1, 70, 3, Q("9.309085 mm")),
    Sketcher.Constraint("DistanceX", 14, 2, -1, 1, Q("12.558296 mm")),
    Sketcher.Constraint("DistanceY", 21, 2, -1, 1, Q("0.001857 mm")),
    Sketcher.Constraint("DistanceX", 35, 2, -1, 1, Q("7.248393 mm")),
    Sketcher.Constraint("DistanceX", -1, 1, 42, 2, Q("0.001857 mm")),
    Sketcher.Constraint("DistanceX", -1, 1, 56, 2, Q("12.558296 mm")),
    Sketcher.Constraint("DistanceX", -1, 1, 77, 2, Q("7.248393 mm")),
])
pad1 = doc.addObject("PartDesign::Pad", "Pad")
body.addObject(pad1)
pad1.Profile = sketch1
pad1.Length = 19

# Sketch on XY plane
sketch2 = doc.addObject("Sketcher::SketchObject", "Sketch001")
body.addObject(sketch2)
sketch2.AttachmentSupport = (doc.XY_Plane, [""])
sketch2.MapMode = "FlatFace"
sketch2.AttachmentOffset = App.Placement(V(0, 0, 19), App.Rotation())
sketch2.addGeometry(Part.Circle(V(0, 0, 0), V(0, 0, 1), 3), False)
sketch2.addConstraint([
    Sketcher.Constraint("Coincident", 0, 3, -1, 1),
    Sketcher.Constraint("Diameter", 0, Q("6 mm")),
])
pocket1 = doc.addObject("PartDesign::Pocket", "Pocket")
body.addObject(pocket1)
pocket1.Profile = sketch2
pocket1.Type = "ThroughAll"

# Sketch on XY plane
sketch3 = doc.addObject("Sketcher::SketchObject", "Sketch002")
body.addObject(sketch3)
sketch3.AttachmentSupport = (doc.XY_Plane, [""])
sketch3.MapMode = "FlatFace"
sketch3.AttachmentOffset = App.Placement(V(0, 0, 19), App.Rotation())
sketch3.addGeometry([
    Part.LineSegment(V(-10.677078, 1.25, 0), V(-9.871621, 4.256007, 0)),  # 0
    Part.ArcOfCircle(Part.Circle(V(0, 0, 0), V(0, 0, 1), 10.75), math.radians(156.677405), math.radians(173.322595)),  # 1
    Part.LineSegment(V(-9.871621, -4.256007, 0), V(-10.677078, -1.25, 0)),  # 2
    Part.ArcOfCircle(Part.Circle(V(0, 0, 0), V(0, 0, 1), 10.75), math.radians(-173.322595), math.radians(-156.677405)),  # 3
    Part.LineSegment(V(-8.621621, 6.421071, 0), V(-6.421071, 8.621621, 0)),  # 4
    Part.ArcOfCircle(Part.Circle(V(0, 0, 0), V(0, 0, 1), 10.75), math.radians(126.677405), math.radians(143.322595)),  # 5
    Part.LineSegment(V(-4.256007, 9.871621, 0), V(-1.25, 10.677078, 0)),  # 6
    Part.ArcOfCircle(Part.Circle(V(0, 0, 0), V(0, 0, 1), 10.75), math.radians(96.677405), math.radians(113.322595)),  # 7
    Part.ArcOfCircle(Part.Circle(V(0, 0, 0), V(0, 0, 1), 10.75), math.radians(66.677405), math.radians(83.322595)),  # 8
    Part.LineSegment(V(1.25, 10.677078, 0), V(4.256007, 9.871621, 0)),  # 9
    Part.ArcOfCircle(Part.Circle(V(0, 0, 0), V(0, 0, 1), 10.75), math.radians(36.677405), math.radians(53.322595)),  # 10
    Part.LineSegment(V(6.421071, 8.621621, 0), V(8.621621, 6.421071, 0)),  # 11
    Part.ArcOfCircle(Part.Circle(V(0, 0, 0), V(0, 0, 1), 10.75), math.radians(6.677405), math.radians(23.322595)),  # 12
    Part.LineSegment(V(9.871621, 4.256007, 0), V(10.677078, 1.25, 0)),  # 13
    Part.ArcOfCircle(Part.Circle(V(0, 0, 0), V(0, 0, 1), 10.75), math.radians(-23.322595), math.radians(-6.677405)),  # 14
    Part.LineSegment(V(10.677078, -1.25, 0), V(9.871621, -4.256007, 0)),  # 15
    Part.ArcOfCircle(Part.Circle(V(0, 0, 0), V(0, 0, 1), 10.75), math.radians(-53.322595), math.radians(-36.677405)),  # 16
    Part.LineSegment(V(8.621621, -6.421071, 0), V(6.421071, -8.621621, 0)),  # 17
    Part.ArcOfCircle(Part.Circle(V(0, 0, 0), V(0, 0, 1), 10.75), math.radians(-83.322595), math.radians(-66.677405)),  # 18
    Part.LineSegment(V(4.256007, -9.871621, 0), V(1.25, -10.677078, 0)),  # 19
    Part.LineSegment(V(-1.25, -10.677078, 0), V(-4.256007, -9.871621, 0)),  # 20
    Part.ArcOfCircle(Part.Circle(V(0, 0, 0), V(0, 0, 1), 10.75), math.radians(-113.322595), math.radians(-96.677405)),  # 21
    Part.LineSegment(V(-6.421071, -8.621621, 0), V(-8.621621, -6.421071, 0)),  # 22
    Part.ArcOfCircle(Part.Circle(V(0, 0, 0), V(0, 0, 1), 10.75), math.radians(-143.322595), math.radians(-126.677405)),  # 23
], False)
sketch3.addConstraint([
    Sketcher.Constraint("Coincident", 0, 1, 1, 2),
    Sketcher.Constraint("Coincident", 1, 1, 0, 2),
    Sketcher.Constraint("Coincident", 2, 1, 3, 2),
    Sketcher.Constraint("Coincident", 3, 1, 2, 2),
    Sketcher.Constraint("Coincident", 4, 1, 5, 2),
    Sketcher.Constraint("Coincident", 5, 1, 4, 2),
    Sketcher.Constraint("Coincident", 6, 1, 7, 2),
    Sketcher.Constraint("Coincident", 7, 1, 6, 2),
    Sketcher.Constraint("Coincident", 8, 1, 9, 2),
    Sketcher.Constraint("Coincident", 9, 1, 8, 2),
    Sketcher.Constraint("Coincident", 10, 1, 11, 2),
    Sketcher.Constraint("Coincident", 11, 1, 10, 2),
    Sketcher.Constraint("Coincident", 12, 1, 13, 2),
    Sketcher.Constraint("Coincident", 13, 1, 12, 2),
    Sketcher.Constraint("Coincident", 14, 1, 15, 2),
    Sketcher.Constraint("Coincident", 15, 1, 14, 2),
    Sketcher.Constraint("Coincident", 16, 1, 17, 2),
    Sketcher.Constraint("Coincident", 17, 1, 16, 2),
    Sketcher.Constraint("Coincident", 18, 1, 19, 2),
    Sketcher.Constraint("Coincident", 19, 1, 18, 2),
    Sketcher.Constraint("Coincident", 20, 1, 21, 2),
    Sketcher.Constraint("Coincident", 21, 1, 20, 2),
    Sketcher.Constraint("Coincident", 22, 1, 23, 2),
    Sketcher.Constraint("Coincident", 23, 1, 22, 2),
    Sketcher.Constraint("Coincident", 1, 3, -1, 1),
    Sketcher.Constraint("Coincident", 3, 3, -1, 1),
    Sketcher.Constraint("Coincident", 5, 3, -1, 1),
    Sketcher.Constraint("Coincident", 7, 3, -1, 1),
    Sketcher.Constraint("Coincident", 8, 3, -1, 1),
    Sketcher.Constraint("Coincident", 10, 3, -1, 1),
    Sketcher.Constraint("Coincident", 12, 3, -1, 1),
    Sketcher.Constraint("Coincident", 14, 3, -1, 1),
    Sketcher.Constraint("Coincident", 16, 3, -1, 1),
    Sketcher.Constraint("Coincident", 18, 3, -1, 1),
    Sketcher.Constraint("Coincident", 21, 3, -1, 1),
    Sketcher.Constraint("Coincident", 23, 3, -1, 1),
    Sketcher.Constraint("Equal", 1, 3),
    Sketcher.Constraint("Equal", 3, 5),
    Sketcher.Constraint("Equal", 5, 7),
    Sketcher.Constraint("Equal", 7, 8),
    Sketcher.Constraint("Equal", 8, 10),
    Sketcher.Constraint("Equal", 10, 12),
    Sketcher.Constraint("Equal", 12, 14),
    Sketcher.Constraint("Equal", 14, 16),
    Sketcher.Constraint("Equal", 16, 18),
    Sketcher.Constraint("Equal", 18, 21),
    Sketcher.Constraint("Equal", 21, 23),
    Sketcher.Constraint("Perpendicular", 2, 6),
    Sketcher.Constraint("Perpendicular", 0, 9),
    Sketcher.Constraint("Perpendicular", 4, 11),
    Sketcher.Constraint("Perpendicular", 6, 13),
    Sketcher.Constraint("Perpendicular", 9, 15),
    Sketcher.Constraint("Perpendicular", 11, 17),
    Sketcher.Constraint("Perpendicular", 13, 19),
    Sketcher.Constraint("Perpendicular", 15, 20),
    Sketcher.Constraint("Perpendicular", 17, 22),
    Sketcher.Constraint("Horizontal", 6, 1, 8, 1),
    Sketcher.Constraint("Horizontal", 7, 1, 9, 1),
    Sketcher.Constraint("Horizontal", 4, 1, 10, 1),
    Sketcher.Constraint("Horizontal", 5, 1, 11, 1),
    Sketcher.Constraint("Horizontal", 0, 1, 12, 1),
    Sketcher.Constraint("Horizontal", 2, 1, 14, 1),
    Sketcher.Constraint("Horizontal", 18, 1, 20, 1),
    Sketcher.Constraint("Horizontal", 16, 1, 22, 1),
    Sketcher.Constraint("Vertical", 1, 1, 2, 1),
    Sketcher.Constraint("Vertical", 11, 1, 16, 1),
    Sketcher.Constraint("Vertical", 9, 1, 18, 1),
    Sketcher.Constraint("Equal", 2, 4),
    Sketcher.Constraint("Equal", 4, 6),
    Sketcher.Constraint("Angle", 0, Q("75 deg")),
    Sketcher.Constraint("Radius", 1, Q("10.75 mm")),
    Sketcher.Constraint("DistanceY", 3, 1, 0, 1, Q("2.5 mm")),
])
pocket2 = doc.addObject("PartDesign::Pocket", "Pocket001")
body.addObject(pocket2)
pocket2.Profile = sketch3
pocket2.Type = "ThroughAll"

doc.recompute()
